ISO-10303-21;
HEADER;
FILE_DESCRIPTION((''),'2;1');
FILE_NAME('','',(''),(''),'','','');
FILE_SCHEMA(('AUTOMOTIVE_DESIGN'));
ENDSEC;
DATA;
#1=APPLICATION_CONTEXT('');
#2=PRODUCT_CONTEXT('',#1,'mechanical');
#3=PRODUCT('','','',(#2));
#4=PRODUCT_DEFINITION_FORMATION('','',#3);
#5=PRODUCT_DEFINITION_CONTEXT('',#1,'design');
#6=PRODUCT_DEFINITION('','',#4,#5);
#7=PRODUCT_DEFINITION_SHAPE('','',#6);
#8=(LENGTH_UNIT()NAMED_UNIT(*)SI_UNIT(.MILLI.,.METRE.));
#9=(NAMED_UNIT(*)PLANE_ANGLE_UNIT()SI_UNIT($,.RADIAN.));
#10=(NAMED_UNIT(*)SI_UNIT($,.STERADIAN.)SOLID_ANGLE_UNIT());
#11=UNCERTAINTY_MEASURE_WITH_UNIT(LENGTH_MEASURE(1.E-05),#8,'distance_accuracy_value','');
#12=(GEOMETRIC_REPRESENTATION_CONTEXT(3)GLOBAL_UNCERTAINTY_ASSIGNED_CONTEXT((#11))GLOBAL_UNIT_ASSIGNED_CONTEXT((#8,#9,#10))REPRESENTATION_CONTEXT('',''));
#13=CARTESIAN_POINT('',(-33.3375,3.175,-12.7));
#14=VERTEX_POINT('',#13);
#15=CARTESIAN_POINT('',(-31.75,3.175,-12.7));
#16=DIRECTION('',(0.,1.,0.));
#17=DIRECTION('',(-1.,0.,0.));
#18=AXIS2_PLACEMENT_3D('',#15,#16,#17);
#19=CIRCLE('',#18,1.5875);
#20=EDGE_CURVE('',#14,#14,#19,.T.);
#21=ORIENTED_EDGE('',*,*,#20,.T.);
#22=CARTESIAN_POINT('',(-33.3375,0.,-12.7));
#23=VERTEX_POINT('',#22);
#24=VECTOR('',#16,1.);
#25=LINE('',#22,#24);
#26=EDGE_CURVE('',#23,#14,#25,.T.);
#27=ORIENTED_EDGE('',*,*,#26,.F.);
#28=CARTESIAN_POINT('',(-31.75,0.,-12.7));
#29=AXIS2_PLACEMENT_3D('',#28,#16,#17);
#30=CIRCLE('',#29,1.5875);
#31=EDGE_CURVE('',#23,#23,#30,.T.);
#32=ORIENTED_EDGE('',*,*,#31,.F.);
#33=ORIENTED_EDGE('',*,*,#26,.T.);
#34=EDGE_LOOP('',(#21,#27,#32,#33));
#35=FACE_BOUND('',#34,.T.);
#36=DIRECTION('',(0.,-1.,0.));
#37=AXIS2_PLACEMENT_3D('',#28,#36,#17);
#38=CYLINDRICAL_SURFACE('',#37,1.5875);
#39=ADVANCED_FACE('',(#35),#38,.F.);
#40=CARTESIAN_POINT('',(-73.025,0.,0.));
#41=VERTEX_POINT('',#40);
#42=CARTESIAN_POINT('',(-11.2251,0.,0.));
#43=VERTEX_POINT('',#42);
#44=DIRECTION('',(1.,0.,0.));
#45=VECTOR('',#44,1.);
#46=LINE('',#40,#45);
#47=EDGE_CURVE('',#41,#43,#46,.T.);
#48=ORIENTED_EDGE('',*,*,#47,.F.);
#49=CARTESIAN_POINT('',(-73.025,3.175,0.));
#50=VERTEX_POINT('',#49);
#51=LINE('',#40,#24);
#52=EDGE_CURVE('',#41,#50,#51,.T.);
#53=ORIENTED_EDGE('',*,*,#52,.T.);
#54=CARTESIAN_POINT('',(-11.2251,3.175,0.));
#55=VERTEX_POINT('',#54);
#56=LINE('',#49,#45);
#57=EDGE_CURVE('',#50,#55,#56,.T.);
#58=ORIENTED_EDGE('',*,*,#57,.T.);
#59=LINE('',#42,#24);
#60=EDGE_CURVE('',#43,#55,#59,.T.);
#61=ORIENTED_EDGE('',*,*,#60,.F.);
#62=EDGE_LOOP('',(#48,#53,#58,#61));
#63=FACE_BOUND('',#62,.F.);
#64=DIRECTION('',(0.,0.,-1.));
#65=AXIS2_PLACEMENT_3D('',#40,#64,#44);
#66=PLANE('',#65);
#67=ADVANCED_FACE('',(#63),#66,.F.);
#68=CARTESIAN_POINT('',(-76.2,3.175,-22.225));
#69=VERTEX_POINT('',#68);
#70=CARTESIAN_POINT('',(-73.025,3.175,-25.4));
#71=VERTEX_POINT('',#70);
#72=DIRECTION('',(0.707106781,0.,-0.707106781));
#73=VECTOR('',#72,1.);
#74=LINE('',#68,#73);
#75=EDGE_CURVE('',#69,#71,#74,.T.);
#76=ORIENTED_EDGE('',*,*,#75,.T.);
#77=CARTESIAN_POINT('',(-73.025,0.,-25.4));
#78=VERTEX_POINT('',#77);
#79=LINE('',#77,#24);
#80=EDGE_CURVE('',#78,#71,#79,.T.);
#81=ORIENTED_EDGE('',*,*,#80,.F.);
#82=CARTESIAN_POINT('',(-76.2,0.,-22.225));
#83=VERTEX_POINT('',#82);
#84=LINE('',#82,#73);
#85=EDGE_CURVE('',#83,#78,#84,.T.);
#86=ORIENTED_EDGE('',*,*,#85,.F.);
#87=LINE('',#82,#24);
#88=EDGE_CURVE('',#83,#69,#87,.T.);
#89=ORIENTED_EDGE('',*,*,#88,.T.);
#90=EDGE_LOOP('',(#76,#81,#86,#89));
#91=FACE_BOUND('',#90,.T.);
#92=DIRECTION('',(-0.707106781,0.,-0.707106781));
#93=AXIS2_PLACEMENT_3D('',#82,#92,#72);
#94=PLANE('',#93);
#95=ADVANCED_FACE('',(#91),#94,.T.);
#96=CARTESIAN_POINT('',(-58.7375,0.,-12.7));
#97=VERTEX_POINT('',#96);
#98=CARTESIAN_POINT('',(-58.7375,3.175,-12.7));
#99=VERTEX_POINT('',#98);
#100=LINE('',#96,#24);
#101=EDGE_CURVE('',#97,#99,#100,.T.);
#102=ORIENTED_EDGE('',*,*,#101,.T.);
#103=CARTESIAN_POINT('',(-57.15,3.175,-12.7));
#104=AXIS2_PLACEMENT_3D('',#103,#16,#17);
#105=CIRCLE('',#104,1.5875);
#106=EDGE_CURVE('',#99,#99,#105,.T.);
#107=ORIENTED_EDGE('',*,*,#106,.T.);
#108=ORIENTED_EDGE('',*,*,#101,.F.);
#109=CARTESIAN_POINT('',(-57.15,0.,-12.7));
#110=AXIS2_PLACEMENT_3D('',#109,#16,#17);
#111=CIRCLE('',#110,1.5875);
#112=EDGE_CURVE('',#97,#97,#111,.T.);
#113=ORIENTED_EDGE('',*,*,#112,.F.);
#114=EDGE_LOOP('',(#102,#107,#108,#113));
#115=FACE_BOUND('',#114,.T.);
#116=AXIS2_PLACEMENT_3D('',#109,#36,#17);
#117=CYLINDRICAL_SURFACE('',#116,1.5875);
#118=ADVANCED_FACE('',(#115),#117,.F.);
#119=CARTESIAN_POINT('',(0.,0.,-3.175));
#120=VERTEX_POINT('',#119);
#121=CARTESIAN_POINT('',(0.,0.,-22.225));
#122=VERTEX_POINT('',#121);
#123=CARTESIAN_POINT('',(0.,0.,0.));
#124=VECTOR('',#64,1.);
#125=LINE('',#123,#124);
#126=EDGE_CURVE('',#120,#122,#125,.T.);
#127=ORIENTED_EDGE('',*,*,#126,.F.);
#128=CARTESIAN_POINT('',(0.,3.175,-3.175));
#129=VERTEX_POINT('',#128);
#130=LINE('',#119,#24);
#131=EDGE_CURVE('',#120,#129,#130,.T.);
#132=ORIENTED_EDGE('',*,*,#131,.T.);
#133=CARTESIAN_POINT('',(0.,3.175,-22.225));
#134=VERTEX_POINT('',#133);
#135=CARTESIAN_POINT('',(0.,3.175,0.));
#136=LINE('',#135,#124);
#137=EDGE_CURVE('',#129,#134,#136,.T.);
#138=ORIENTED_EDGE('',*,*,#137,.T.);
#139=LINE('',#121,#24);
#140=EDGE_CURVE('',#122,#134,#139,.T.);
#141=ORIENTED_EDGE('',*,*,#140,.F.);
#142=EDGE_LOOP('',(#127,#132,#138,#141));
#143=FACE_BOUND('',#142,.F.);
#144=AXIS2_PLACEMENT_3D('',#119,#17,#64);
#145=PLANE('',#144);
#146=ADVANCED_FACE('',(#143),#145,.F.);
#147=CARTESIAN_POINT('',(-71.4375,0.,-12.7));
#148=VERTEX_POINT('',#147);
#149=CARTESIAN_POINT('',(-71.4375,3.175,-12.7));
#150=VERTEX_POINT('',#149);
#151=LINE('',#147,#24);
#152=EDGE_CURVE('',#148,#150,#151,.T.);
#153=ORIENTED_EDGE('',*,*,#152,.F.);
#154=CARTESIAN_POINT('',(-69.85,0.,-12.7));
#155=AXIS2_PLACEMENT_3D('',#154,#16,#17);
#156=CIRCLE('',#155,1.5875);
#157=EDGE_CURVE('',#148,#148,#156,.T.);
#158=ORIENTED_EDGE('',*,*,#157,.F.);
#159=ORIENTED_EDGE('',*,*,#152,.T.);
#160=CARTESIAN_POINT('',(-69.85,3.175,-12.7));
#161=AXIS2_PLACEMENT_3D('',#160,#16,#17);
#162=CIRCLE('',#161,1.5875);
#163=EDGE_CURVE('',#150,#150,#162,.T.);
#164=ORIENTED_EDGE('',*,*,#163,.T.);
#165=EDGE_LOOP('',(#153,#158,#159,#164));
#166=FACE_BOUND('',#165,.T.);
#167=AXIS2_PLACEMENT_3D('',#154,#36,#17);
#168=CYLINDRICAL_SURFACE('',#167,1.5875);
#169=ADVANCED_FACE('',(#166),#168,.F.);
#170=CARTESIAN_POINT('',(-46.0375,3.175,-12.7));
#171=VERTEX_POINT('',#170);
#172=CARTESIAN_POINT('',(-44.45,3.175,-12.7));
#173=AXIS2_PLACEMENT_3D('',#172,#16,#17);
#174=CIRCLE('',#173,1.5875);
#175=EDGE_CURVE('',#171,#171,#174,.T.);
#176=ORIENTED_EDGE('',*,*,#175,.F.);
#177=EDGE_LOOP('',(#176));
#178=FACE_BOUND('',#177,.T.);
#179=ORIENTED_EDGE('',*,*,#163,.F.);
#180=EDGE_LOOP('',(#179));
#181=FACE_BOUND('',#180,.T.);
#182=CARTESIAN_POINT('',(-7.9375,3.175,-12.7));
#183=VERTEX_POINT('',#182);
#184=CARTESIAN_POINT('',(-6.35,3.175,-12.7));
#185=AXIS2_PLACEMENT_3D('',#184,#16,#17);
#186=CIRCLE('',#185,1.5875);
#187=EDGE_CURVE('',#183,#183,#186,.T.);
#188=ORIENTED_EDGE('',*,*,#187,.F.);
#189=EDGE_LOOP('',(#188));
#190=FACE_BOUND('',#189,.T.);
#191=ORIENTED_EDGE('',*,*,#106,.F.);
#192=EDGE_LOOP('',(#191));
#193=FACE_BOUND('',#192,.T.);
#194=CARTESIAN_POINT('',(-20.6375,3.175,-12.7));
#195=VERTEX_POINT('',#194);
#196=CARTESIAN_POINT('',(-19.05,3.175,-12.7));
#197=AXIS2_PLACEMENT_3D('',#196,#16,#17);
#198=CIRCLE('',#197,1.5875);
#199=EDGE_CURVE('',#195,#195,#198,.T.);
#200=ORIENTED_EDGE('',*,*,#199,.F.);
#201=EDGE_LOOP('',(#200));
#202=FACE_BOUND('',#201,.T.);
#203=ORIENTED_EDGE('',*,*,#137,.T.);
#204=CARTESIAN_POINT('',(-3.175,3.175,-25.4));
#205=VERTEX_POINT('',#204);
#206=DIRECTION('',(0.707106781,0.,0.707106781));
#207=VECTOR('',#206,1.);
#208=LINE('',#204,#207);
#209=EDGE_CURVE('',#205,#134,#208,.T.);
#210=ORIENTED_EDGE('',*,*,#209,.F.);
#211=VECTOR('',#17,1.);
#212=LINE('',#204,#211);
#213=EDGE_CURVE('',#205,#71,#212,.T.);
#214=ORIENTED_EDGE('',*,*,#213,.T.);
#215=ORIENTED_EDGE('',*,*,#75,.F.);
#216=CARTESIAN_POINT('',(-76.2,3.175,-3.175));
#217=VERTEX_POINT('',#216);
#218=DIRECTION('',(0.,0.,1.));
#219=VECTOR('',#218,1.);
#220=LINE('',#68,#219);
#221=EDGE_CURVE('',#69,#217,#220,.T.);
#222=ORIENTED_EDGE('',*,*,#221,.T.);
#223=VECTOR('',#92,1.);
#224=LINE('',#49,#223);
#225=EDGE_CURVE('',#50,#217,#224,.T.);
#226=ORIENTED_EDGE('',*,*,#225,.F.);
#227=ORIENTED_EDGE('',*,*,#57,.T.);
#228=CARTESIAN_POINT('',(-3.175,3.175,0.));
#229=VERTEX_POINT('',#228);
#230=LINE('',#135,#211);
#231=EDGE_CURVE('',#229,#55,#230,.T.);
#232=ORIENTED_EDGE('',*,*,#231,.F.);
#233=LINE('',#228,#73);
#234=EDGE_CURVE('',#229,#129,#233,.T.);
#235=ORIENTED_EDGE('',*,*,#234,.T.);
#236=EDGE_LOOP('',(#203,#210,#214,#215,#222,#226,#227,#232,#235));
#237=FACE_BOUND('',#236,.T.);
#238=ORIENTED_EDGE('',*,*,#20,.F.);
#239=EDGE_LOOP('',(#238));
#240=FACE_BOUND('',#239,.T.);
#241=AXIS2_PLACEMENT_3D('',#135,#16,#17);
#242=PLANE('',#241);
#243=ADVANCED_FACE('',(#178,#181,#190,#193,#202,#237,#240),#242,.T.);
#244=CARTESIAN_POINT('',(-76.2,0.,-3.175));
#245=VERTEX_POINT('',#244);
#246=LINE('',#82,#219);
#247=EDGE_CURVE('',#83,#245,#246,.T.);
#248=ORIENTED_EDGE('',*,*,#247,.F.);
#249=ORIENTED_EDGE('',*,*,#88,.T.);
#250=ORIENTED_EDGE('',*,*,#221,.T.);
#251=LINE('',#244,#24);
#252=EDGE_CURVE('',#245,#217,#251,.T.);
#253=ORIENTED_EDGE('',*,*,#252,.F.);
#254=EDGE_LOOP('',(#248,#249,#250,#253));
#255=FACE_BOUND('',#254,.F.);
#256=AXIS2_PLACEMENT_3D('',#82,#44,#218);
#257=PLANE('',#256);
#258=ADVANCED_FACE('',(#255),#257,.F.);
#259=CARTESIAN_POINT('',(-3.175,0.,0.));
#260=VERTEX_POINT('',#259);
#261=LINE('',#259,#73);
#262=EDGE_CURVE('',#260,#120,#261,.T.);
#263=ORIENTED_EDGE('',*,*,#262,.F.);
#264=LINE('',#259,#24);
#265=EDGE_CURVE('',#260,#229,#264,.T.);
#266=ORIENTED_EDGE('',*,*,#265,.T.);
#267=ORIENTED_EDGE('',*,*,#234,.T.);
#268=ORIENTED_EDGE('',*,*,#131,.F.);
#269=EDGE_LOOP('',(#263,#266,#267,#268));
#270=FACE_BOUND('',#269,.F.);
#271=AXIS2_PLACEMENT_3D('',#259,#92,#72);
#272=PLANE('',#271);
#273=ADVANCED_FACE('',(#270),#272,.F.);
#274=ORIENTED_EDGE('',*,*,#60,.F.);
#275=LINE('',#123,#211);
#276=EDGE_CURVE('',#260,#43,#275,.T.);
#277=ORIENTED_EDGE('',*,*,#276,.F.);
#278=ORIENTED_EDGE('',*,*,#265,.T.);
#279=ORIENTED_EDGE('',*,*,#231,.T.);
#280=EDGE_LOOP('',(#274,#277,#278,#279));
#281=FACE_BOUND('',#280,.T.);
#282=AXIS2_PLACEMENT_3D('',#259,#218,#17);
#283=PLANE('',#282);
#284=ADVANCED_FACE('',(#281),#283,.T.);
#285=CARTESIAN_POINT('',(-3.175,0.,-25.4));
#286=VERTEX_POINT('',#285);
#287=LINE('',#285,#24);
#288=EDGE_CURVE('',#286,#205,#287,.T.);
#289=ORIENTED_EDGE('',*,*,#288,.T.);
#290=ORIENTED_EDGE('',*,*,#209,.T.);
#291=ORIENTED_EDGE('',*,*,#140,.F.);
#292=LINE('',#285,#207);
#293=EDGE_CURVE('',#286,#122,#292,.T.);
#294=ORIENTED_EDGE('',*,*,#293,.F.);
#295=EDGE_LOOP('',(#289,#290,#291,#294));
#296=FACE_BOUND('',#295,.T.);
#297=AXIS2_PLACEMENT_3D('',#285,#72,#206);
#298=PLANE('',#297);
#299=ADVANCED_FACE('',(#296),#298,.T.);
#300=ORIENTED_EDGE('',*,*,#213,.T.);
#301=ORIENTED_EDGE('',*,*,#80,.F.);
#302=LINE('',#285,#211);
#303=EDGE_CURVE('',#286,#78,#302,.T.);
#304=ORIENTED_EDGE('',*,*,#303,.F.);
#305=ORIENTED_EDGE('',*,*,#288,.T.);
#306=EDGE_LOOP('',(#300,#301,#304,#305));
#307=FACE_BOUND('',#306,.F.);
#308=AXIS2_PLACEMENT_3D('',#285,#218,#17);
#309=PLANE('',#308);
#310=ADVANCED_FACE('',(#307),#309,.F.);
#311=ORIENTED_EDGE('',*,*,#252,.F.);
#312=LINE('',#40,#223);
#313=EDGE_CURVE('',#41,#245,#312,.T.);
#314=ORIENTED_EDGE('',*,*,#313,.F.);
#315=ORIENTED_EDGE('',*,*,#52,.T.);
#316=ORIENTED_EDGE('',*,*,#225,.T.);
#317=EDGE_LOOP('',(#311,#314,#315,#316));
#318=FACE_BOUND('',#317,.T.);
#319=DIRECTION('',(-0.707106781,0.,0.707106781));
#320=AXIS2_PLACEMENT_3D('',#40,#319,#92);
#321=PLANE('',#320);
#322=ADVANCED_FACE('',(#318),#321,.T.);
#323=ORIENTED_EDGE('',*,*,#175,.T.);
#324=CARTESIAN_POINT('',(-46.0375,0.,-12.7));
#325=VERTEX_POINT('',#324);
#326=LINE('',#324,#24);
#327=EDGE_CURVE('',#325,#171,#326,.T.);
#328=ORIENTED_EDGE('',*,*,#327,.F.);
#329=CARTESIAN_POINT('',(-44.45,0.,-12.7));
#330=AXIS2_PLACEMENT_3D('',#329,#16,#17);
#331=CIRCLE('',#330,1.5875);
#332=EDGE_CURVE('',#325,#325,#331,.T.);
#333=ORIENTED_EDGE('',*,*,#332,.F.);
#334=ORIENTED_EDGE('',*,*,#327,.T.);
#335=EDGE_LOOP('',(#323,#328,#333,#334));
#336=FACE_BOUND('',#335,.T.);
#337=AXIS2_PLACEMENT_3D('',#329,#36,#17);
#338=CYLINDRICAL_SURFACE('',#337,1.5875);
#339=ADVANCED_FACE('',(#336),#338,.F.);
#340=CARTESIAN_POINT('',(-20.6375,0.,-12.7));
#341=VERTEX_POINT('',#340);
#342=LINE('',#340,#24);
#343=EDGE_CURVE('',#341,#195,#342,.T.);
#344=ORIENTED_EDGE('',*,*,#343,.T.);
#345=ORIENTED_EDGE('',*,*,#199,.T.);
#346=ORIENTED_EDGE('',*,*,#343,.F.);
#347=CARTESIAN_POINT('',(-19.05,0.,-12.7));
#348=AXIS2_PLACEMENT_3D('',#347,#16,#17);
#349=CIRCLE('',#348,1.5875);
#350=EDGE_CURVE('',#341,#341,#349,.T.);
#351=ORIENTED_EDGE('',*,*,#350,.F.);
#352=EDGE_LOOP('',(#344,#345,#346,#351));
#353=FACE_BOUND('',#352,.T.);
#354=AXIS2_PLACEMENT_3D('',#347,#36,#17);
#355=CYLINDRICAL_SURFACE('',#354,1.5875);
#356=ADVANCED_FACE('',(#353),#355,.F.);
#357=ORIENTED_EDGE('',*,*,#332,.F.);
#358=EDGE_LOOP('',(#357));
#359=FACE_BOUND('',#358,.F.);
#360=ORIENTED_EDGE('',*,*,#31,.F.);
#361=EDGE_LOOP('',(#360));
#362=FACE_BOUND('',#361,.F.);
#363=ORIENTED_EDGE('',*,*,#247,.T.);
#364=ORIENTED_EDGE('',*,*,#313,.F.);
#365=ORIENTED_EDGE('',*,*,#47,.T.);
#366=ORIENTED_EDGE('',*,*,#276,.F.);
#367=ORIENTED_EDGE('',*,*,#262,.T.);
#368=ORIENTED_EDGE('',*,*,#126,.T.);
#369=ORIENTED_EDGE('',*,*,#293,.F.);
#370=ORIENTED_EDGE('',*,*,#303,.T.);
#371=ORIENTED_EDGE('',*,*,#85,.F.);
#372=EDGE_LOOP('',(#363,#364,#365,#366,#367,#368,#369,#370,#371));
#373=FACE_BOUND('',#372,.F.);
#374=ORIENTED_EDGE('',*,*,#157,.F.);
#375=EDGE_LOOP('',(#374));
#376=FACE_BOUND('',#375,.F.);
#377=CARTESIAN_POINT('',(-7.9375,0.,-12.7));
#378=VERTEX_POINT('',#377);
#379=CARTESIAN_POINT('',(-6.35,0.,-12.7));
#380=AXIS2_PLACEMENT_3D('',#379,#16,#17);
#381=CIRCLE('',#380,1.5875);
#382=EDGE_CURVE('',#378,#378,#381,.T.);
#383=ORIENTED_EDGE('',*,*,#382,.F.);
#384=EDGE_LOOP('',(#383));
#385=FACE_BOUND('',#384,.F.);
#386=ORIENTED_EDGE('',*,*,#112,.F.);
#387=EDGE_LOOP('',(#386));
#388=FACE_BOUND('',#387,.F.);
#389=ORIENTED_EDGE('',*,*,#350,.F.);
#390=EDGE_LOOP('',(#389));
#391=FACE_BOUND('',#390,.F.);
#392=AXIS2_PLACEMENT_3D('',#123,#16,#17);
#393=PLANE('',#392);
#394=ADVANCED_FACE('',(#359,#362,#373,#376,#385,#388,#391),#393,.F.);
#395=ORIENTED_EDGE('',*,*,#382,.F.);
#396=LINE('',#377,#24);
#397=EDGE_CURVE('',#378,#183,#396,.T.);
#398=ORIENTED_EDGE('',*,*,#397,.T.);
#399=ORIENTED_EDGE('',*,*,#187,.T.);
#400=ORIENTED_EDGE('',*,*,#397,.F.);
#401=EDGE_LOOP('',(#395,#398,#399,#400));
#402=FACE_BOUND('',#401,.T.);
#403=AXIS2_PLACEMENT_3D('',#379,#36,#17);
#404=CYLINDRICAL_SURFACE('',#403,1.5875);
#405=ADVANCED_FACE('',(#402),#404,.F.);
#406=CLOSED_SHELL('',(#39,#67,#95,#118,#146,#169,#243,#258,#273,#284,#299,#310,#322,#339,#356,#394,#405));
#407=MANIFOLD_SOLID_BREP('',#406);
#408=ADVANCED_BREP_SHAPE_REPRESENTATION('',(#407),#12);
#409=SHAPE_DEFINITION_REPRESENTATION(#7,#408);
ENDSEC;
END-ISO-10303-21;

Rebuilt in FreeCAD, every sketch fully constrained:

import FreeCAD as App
import Part
import Sketcher
from FreeCAD import Vector
Q = App.Units.Quantity


def add_polygon(sketch, points):
    """Adds a closed chain of lines whose ends are joined by coincident constraints."""
    first, n = sketch.GeometryCount, len(points)
    for a, b in zip(points, points[1:] + points[:1]):
        sketch.addGeometry(Part.LineSegment(App.Vector(*a, 0), App.Vector(*b, 0)), False)
    for i in range(n):
        sketch.addConstraint(Sketcher.Constraint("Coincident", first + i, 2, first + (i + 1) % n, 1))

doc = App.newDocument("Part")
params = doc.addObject("Spreadsheet::Sheet", "Params")
for row, (alias, value) in enumerate([
    ("sketch1_diameter", "0.125 in"),
    ("pad1_length", "0.125 in"),
], start=1):
    params.set(f"A{row}", alias)
    params.set(f"B{row}", "=" + value)
    params.setAlias(f"B{row}", alias)

body = doc.addObject("PartDesign::Body", "Body")

# Sketch on XZ plane
sketch1 = body.newObject("Sketcher::SketchObject", "Sketch")
sketch1.AttachmentSupport = (doc.getObject("XZ_Plane"), [""])
sketch1.MapMode = "FlatFace"
add_polygon(sketch1, [(-73, 0), (-3.2, 0), (0, -3.2), (0, -22.2), (-3.2, -25.4), (-73, -25.4), (-76.2, -22.2), (-76.2, -3.2)])  # lines 0-7
sketch1.addGeometry(Part.Circle(Vector(-6.3, -12.7, 0), Vector(0, 0, 1), 1.6), False)  # 8
sketch1.addGeometry(Part.Circle(Vector(-19.1, -12.7, 0), Vector(0, 0, 1), 1.6), False)  # 9
sketch1.addGeometry(Part.Circle(Vector(-31.8, -12.7, 0), Vector(0, 0, 1), 1.6), False)  # 10
sketch1.addGeometry(Part.Circle(Vector(-44.5, -12.7, 0), Vector(0, 0, 1), 1.6), False)  # 11
sketch1.addGeometry(Part.Circle(Vector(-57.1, -12.7, 0), Vector(0, 0, 1), 1.6), False)  # 12
sketch1.addGeometry(Part.Circle(Vector(-69.8, -12.7, 0), Vector(0, 0, 1), 1.6), False)  # 13
sketch1.addConstraint([
    Sketcher.Constraint("Horizontal", 0),
    Sketcher.Constraint("Vertical", 2),
    Sketcher.Constraint("Horizontal", 4),
    Sketcher.Constraint("Vertical", 6),
    Sketcher.Constraint("Equal", 8, 9),
    Sketcher.Constraint("Equal", 9, 10),
    Sketcher.Constraint("Equal", 10, 11),
    Sketcher.Constraint("Equal", 11, 12),
    Sketcher.Constraint("Equal", 12, 13),
    Sketcher.Constraint("PointOnObject", 0, 2, -1),
    Sketcher.Constraint("PointOnObject", 1, 2, -2),
    Sketcher.Constraint("Perpendicular", 1, 3),
    Sketcher.Constraint("Perpendicular", 3, 5),
    Sketcher.Constraint("Perpendicular", 5, 7),
    Sketcher.Constraint("Horizontal", 8, 3, 9, 3),
    Sketcher.Constraint("Horizontal", 9, 3, 10, 3),
    Sketcher.Constraint("Horizontal", 10, 3, 11, 3),
    Sketcher.Constraint("Horizontal", 11, 3, 12, 3),
    Sketcher.Constraint("Horizontal", 12, 3, 13, 3),
    Sketcher.Constraint("Horizontal", 2, 2, 5, 2),
    Sketcher.Constraint("Horizontal", 1, 2, 6, 2),
    Sketcher.Constraint("Vertical", 0, 2, 3, 2),
    Sketcher.Constraint("Vertical", 4, 2, 7, 2),
    Sketcher.Constraint("Diameter", 8, Q("0.125 in")),
    Sketcher.Constraint("DistanceY", 3, 2, -1, 1, Q("1 in")),
    Sketcher.Constraint("DistanceX", 10, 3, 8, 3, Q("1 in")),
    Sketcher.Constraint("DistanceX", 11, 3, 9, 3, Q("1 in")),
    Sketcher.Constraint("DistanceX", 12, 3, 10, 3, Q("1 in")),
    Sketcher.Constraint("DistanceX", 13, 3, 11, 3, Q("1 in")),
    Sketcher.Constraint("DistanceY", 8, 3, -1, 1, Q("0.5 in")),
    Sketcher.Constraint("DistanceX", 9, 3, 8, 3, Q("0.5 in")),
    Sketcher.Constraint("DistanceX", 8, 3, -1, 1, Q("0.25 in")),
    Sketcher.Constraint("DistanceX", 5, 2, 13, 3, Q("0.25 in")),
    Sketcher.Constraint("DistanceX", 0, 2, -1, 1, Q("0.125 in")),
])
sketch1.setExpression("Constraints[31]", "Params.sketch1_diameter")
pad1 = body.newObject("PartDesign::Pad", "Pad")
pad1.Profile = sketch1
pad1.setExpression("Length", "Params.pad1_length")
pad1.Reversed = True

doc.recompute()
